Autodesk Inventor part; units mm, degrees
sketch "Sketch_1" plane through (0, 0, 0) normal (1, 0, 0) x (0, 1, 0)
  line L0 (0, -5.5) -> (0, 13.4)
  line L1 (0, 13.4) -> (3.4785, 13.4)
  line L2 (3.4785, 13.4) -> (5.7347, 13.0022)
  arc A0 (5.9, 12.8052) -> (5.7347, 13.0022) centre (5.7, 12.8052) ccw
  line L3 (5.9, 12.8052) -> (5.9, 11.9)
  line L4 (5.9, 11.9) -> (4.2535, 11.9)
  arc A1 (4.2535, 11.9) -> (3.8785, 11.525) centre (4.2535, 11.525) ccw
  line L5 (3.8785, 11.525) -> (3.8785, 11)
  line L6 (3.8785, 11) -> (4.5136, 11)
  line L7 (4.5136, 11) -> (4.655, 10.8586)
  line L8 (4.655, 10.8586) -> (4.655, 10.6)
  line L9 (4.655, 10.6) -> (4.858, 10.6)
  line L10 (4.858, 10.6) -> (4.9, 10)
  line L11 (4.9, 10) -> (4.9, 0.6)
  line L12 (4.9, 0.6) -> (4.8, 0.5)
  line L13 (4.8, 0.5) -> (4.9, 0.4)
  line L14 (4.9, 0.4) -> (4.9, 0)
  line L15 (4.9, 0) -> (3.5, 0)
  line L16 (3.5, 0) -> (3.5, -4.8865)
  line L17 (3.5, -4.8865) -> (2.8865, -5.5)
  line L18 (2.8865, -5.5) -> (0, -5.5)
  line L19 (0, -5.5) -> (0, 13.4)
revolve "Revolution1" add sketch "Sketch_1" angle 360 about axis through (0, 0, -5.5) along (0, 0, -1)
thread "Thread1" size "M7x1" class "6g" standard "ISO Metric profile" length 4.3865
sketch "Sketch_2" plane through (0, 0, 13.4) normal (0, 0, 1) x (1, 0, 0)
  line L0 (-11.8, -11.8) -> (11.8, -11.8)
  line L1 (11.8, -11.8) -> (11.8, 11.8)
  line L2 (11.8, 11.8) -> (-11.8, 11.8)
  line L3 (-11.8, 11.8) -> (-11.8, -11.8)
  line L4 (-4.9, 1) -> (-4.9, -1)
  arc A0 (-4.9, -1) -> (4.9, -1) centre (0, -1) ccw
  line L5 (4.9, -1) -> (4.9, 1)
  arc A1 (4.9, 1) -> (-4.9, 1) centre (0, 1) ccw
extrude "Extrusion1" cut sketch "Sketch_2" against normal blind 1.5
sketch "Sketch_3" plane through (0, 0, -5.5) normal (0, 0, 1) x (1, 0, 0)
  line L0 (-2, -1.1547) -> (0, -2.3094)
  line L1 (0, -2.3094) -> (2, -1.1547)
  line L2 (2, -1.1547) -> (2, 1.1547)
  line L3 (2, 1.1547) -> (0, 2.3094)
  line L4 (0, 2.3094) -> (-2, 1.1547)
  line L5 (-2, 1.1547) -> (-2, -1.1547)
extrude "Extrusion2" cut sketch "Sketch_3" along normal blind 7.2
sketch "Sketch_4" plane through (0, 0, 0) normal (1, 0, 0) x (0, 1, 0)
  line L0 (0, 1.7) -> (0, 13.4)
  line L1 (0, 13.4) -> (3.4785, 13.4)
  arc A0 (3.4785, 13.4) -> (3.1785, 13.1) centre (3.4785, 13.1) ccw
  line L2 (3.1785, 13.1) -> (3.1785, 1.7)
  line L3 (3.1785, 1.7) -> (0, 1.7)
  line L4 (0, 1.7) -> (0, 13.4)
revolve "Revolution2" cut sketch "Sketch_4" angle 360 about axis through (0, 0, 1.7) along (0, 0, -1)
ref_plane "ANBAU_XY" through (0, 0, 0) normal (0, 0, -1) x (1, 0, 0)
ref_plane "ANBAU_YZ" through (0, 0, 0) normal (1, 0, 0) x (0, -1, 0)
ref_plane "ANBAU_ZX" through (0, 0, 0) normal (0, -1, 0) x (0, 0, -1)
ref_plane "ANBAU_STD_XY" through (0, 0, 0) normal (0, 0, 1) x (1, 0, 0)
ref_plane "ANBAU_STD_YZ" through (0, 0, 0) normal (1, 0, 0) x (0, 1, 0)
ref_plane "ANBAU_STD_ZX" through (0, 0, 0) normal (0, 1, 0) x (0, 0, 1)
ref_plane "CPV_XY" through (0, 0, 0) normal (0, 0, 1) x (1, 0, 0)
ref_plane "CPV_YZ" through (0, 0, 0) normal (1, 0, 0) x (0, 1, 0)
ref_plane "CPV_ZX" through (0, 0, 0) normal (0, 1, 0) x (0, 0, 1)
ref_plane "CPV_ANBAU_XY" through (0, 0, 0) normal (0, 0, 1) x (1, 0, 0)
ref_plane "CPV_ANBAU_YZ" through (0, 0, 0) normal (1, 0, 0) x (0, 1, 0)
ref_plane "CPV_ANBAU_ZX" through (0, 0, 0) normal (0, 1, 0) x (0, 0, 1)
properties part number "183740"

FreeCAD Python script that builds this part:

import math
import FreeCAD as App
import Part
import Sketcher
Q = App.Units.Quantity


def add_polygon(sketch, points):
    """Adds a closed chain of lines whose ends are joined by coincident constraints."""
    first, n = sketch.GeometryCount, len(points)
    for a, b in zip(points, points[1:] + points[:1]):
        sketch.addGeometry(Part.LineSegment(App.Vector(*a, 0), App.Vector(*b, 0)), False)
    for i in range(n):
        sketch.addConstraint(Sketcher.Constraint("Coincident", first + i, 2, first + (i + 1) % n, 1))

doc = App.newDocument("Part")
body = doc.addObject("PartDesign::Body", "Body")

# Sketch on YZ plane
sketch1 = body.newObject("Sketcher::SketchObject", "Sketch")
sketch1.AttachmentSupport = (doc.getObject("YZ_Plane"), [""])
sketch1.MapMode = "FlatFace"
sketch1.addGeometry(Part.LineSegment(App.Vector(0, 13.4, 0), App.Vector(0, -5.5, 0)), False)
sketch1.addGeometry(Part.LineSegment(App.Vector(0, -5.5, 0), App.Vector(2.89, -5.5, 0)), False)
sketch1.addGeometry(Part.LineSegment(App.Vector(2.89, -5.5, 0), App.Vector(3.5, -4.89, 0)), False)
sketch1.addGeometry(Part.LineSegment(App.Vector(3.5, -4.89, 0), App.Vector(3.5, 0, 0)), False)
sketch1.addGeometry(Part.LineSegment(App.Vector(3.5, 0, 0), App.Vector(4.9, 0, 0)), False)
sketch1.addGeometry(Part.LineSegment(App.Vector(4.9, 0, 0), App.Vector(4.9, 0.4, 0)), False)
sketch1.addGeometry(Part.LineSegment(App.Vector(4.9, 0.4, 0), App.Vector(4.8, 0.5, 0)), False)
sketch1.addGeometry(Part.LineSegment(App.Vector(4.8, 0.5, 0), App.Vector(4.9, 0.6, 0)), False)
sketch1.addGeometry(Part.LineSegment(App.Vector(4.9, 0.6, 0), App.Vector(4.9, 10, 0)), False)
sketch1.addGeometry(Part.LineSegment(App.Vector(4.9, 10, 0), App.Vector(4.86, 10.6, 0)), False)
sketch1.addGeometry(Part.LineSegment(App.Vector(4.86, 10.6, 0), App.Vector(4.66, 10.6, 0)), False)
sketch1.addGeometry(Part.LineSegment(App.Vector(4.66, 10.6, 0), App.Vector(4.66, 10.86, 0)), False)
sketch1.addGeometry(Part.LineSegment(App.Vector(4.66, 10.86, 0), App.Vector(4.51, 11, 0)), False)
sketch1.addGeometry(Part.LineSegment(App.Vector(4.51, 11, 0), App.Vector(3.88, 11, 0)), False)
sketch1.addGeometry(Part.LineSegment(App.Vector(3.88, 11, 0), App.Vector(3.88, 11.53, 0)), False)
sketch1.addGeometry(Part.ArcOfCircle(Part.Circle(App.Vector(4.25, 11.53, 0), App.Vector(0, 0, 1), 0.38), math.radians(90), math.radians(180)), False)
sketch1.addGeometry(Part.LineSegment(App.Vector(4.25, 11.9, 0), App.Vector(5.9, 11.9, 0)), False)
sketch1.addGeometry(Part.LineSegment(App.Vector(5.9, 11.9, 0), App.Vector(5.9, 12.81, 0)), False)
sketch1.addGeometry(Part.ArcOfCircle(Part.Circle(App.Vector(5.7, 12.81, 0), App.Vector(0, 0, 1), 0.2), math.radians(0), math.radians(80)), False)
sketch1.addGeometry(Part.LineSegment(App.Vector(5.73, 13, 0), App.Vector(3.48, 13.4, 0)), False)
sketch1.addGeometry(Part.LineSegment(App.Vector(3.48, 13.4, 0), App.Vector(0, 13.4, 0)), False)
sketch1.addConstraint(Sketcher.Constraint("Coincident", 0, 2, 1, 1))
sketch1.addConstraint(Sketcher.Constraint("Coincident", 1, 2, 2, 1))
sketch1.addConstraint(Sketcher.Constraint("Coincident", 2, 2, 3, 1))
sketch1.addConstraint(Sketcher.Constraint("Coincident", 3, 2, 4, 1))
sketch1.addConstraint(Sketcher.Constraint("Coincident", 4, 2, 5, 1))
sketch1.addConstraint(Sketcher.Constraint("Coincident", 5, 2, 6, 1))
sketch1.addConstraint(Sketcher.Constraint("Coincident", 6, 2, 7, 1))
sketch1.addConstraint(Sketcher.Constraint("Coincident", 7, 2, 8, 1))
sketch1.addConstraint(Sketcher.Constraint("Coincident", 8, 2, 9, 1))
sketch1.addConstraint(Sketcher.Constraint("Coincident", 9, 2, 10, 1))
sketch1.addConstraint(Sketcher.Constraint("Coincident", 10, 2, 11, 1))
sketch1.addConstraint(Sketcher.Constraint("Coincident", 11, 2, 12, 1))
sketch1.addConstraint(Sketcher.Constraint("Coincident", 12, 2, 13, 1))
sketch1.addConstraint(Sketcher.Constraint("Coincident", 13, 2, 14, 1))
sketch1.addConstraint(Sketcher.Constraint("Tangent", 14, 2, 15, 2))
sketch1.addConstraint(Sketcher.Constraint("Tangent", 15, 1, 16, 1))
sketch1.addConstraint(Sketcher.Constraint("Coincident", 16, 2, 17, 1))
sketch1.addConstraint(Sketcher.Constraint("Tangent", 17, 2, 18, 1))
sketch1.addConstraint(Sketcher.Constraint("Tangent", 18, 2, 19, 1))
sketch1.addConstraint(Sketcher.Constraint("Coincident", 19, 2, 20, 1))
sketch1.addConstraint(Sketcher.Constraint("Coincident", 20, 2, 0, 1))
sketch1.addConstraint(Sketcher.Constraint("Vertical", 0))
sketch1.addConstraint(Sketcher.Constraint("Horizontal", 1))
sketch1.addConstraint(Sketcher.Constraint("Vertical", 3))
sketch1.addConstraint(Sketcher.Constraint("Horizontal", 4))
sketch1.addConstraint(Sketcher.Constraint("Vertical", 5))
sketch1.addConstraint(Sketcher.Constraint("Vertical", 8))
sketch1.addConstraint(Sketcher.Constraint("Horizontal", 10))
sketch1.addConstraint(Sketcher.Constraint("Vertical", 11))
sketch1.addConstraint(Sketcher.Constraint("Horizontal", 13))
sketch1.addConstraint(Sketcher.Constraint("Vertical", 14))
sketch1.addConstraint(Sketcher.Constraint("Horizontal", 16))
sketch1.addConstraint(Sketcher.Constraint("Vertical", 17))
sketch1.addConstraint(Sketcher.Constraint("Horizontal", 20))
sketch1.addConstraint(Sketcher.Constraint("PointOnObject", 0, 2, -2))
sketch1.addConstraint(Sketcher.Constraint("PointOnObject", 3, 2, -1))
sketch1.addConstraint(Sketcher.Constraint("Perpendicular", 2, 6))
sketch1.addConstraint(Sketcher.Constraint("Perpendicular", 6, 7))
sketch1.addConstraint(Sketcher.Constraint("Perpendicular", 7, 12))
sketch1.addConstraint(Sketcher.Constraint("Vertical", 5, 2, 7, 2))
sketch1.addConstraint(Sketcher.Constraint("Equal", 6, 7))
sketch1.addConstraint(Sketcher.Constraint("Radius", 18, 0.2))
sketch1.addConstraint(Sketcher.Constraint("Angle", 19, Q("170.0007 deg")))
sketch1.addConstraint(Sketcher.Constraint("DistanceX", 4, 1, 4, 2, 1.4))
sketch1.addConstraint(Sketcher.Constraint("DistanceY", 0, 2, 0, 1, 18.9))
sketch1.addConstraint(Sketcher.Constraint("DistanceY", 5, 1, 5, 2, 0.4))
sketch1.addConstraint(Sketcher.Constraint("DistanceY", 8, 1, 8, 2, 9.4))
sketch1.addConstraint(Sketcher.Constraint("DistanceY", -1, 1, 8, 2, 10.0))
sketch1.addConstraint(Sketcher.Constraint("DistanceY", -1, 1, 12, 2, 11.0))
sketch1.addConstraint(Sketcher.Constraint("Radius", 15, 0.375))
sketch1.addConstraint(Sketcher.Constraint("DistanceY", 1, 2, 6, 2, 6.0))
sketch1.addConstraint(Sketcher.Constraint("DistanceY", 7, 2, 9, 2, 10.0))
sketch1.addConstraint(Sketcher.Constraint("Distance", 12, 0.2))
sketch1.addConstraint(Sketcher.Constraint("DistanceX", -1, 1, 18, 3, 5.7))
sketch1.addConstraint(Sketcher.Constraint("DistanceX", -1, 1, 2, 2, 3.5))
sketch1.addConstraint(Sketcher.Constraint("DistanceY", -1, 1, 15, 1, 11.9))
sketch1.addConstraint(Sketcher.Constraint("DistanceX", 19, 2, 14, 2, 0.4))
sketch1.addConstraint(Sketcher.Constraint("DistanceX", 10, 2, 10, 1, 0.203))
sketch1.addConstraint(Sketcher.Constraint("DistanceX", 13, 2, 13, 1, 0.635))
sketch1.addConstraint(Sketcher.Constraint("Distance", 19, 2.291))
sketch1.addConstraint(Sketcher.Constraint("DistanceX", 1, 1, 1, 2, 2.8865))
revolution = body.newObject("PartDesign::Revolution", "Revolution")
revolution.Profile = sketch1
revolution.ReferenceAxis = (sketch1, ["V_Axis"])
revolution.Angle = 360

# Sketch on XY plane
sketch2 = body.newObject("Sketcher::SketchObject", "Sketch001")
sketch2.AttachmentSupport = (doc.getObject("XY_Plane"), [""])
sketch2.MapMode = "FlatFace"
sketch2.AttachmentOffset = App.Placement(App.Vector(0, 0, 13.4), App.Rotation())
add_polygon(sketch2, [(-11.8, 11.8), (-11.8, -11.8), (11.8, -11.8), (11.8, 11.8)])  # lines 0-3
sketch2.addGeometry(Part.LineSegment(App.Vector(-4.9, -1, 0), App.Vector(-4.9, 1, 0)), False)  # 4
sketch2.addGeometry(Part.ArcOfCircle(Part.Circle(App.Vector(0, 1, 0), App.Vector(0, 0, 1), 4.9), math.radians(0), math.radians(180)), False)  # 5
sketch2.addGeometry(Part.LineSegment(App.Vector(4.9, 1, 0), App.Vector(4.9, -1, 0)), False)  # 6
sketch2.addGeometry(Part.ArcOfCircle(Part.Circle(App.Vector(0, -1, 0), App.Vector(0, 0, 1), 4.9), math.radians(180), math.radians(360)), False)  # 7
sketch2.addConstraint(Sketcher.Constraint("Tangent", 4, 2, 5, 2))
sketch2.addConstraint(Sketcher.Constraint("Tangent", 5, 1, 6, 1))
sketch2.addConstraint(Sketcher.Constraint("Tangent", 6, 2, 7, 2))
sketch2.addConstraint(Sketcher.Constraint("Tangent", 7, 1, 4, 1))
sketch2.addConstraint(Sketcher.Constraint("Vertical", 0))
sketch2.addConstraint(Sketcher.Constraint("Horizontal", 1))
sketch2.addConstraint(Sketcher.Constraint("Vertical", 2))
sketch2.addConstraint(Sketcher.Constraint("Horizontal", 3))
sketch2.addConstraint(Sketcher.Constraint("Vertical", 4))
sketch2.addConstraint(Sketcher.Constraint("Vertical", 6))
sketch2.addConstraint(Sketcher.Constraint("Symmetric", 5, 3, 7, 3, -1, 1))
sketch2.addConstraint(Sketcher.Constraint("Symmetric", 0, 2, 2, 2, -1, 1))
sketch2.addConstraint(Sketcher.Constraint("Equal", 3, 0))
sketch2.addConstraint(Sketcher.Constraint("Radius", 5, 4.9))
sketch2.addConstraint(Sketcher.Constraint("DistanceY", 4, 1, 4, 2, 2.0))
sketch2.addConstraint(Sketcher.Constraint("DistanceX", 1, 1, 1, 2, 23.6))
pocket1 = body.newObject("PartDesign::Pocket", "Pocket")
pocket1.Profile = sketch2
pocket1.Length = 1.5

# Sketch on XY plane
sketch3 = body.newObject("Sketcher::SketchObject", "Sketch002")
sketch3.AttachmentSupport = (doc.getObject("XY_Plane"), [""])
sketch3.MapMode = "FlatFace"
sketch3.AttachmentOffset = App.Placement(App.Vector(0, 0, -5.5), App.Rotation())
add_polygon(sketch3, [(-2, 1.2), (-2, -1.2), (0, -2.3), (2, -1.2), (2, 1.2), (0, 2.3)])  # lines 0-5
sketch3.addConstraint(Sketcher.Constraint("Vertical", 0))
sketch3.addConstraint(Sketcher.Constraint("Vertical", 3))
sketch3.addConstraint(Sketcher.Constraint("Symmetric", 0, 2, 3, 2, -1, 1))
sketch3.addConstraint(Sketcher.Constraint("Symmetric", 1, 2, 4, 2, -1, 1))
sketch3.addConstraint(Sketcher.Constraint("PointOnObject", 1, 2, -2))
sketch3.addConstraint(Sketcher.Constraint("Parallel", 2, 5))
sketch3.addConstraint(Sketcher.Constraint("Horizontal", 0, 2, 2, 2))
sketch3.addConstraint(Sketcher.Constraint("Angle", 1, Q("-30 deg")))
sketch3.addConstraint(Sketcher.Constraint("DistanceX", 0, 2, -1, 1, 2.0))
sketch3.addConstraint(Sketcher.Constraint("DistanceY", 0, 2, 0, 1, 2.3094))
pocket2 = body.newObject("PartDesign::Pocket", "Pocket001")
pocket2.Profile = sketch3
pocket2.Length = 7.2
pocket2.Reversed = True

# Sketch on YZ plane
sketch4 = body.newObject("Sketcher::SketchObject", "Sketch003")
sketch4.AttachmentSupport = (doc.getObject("YZ_Plane"), [""])
sketch4.MapMode = "FlatFace"
sketch4.addGeometry(Part.LineSegment(App.Vector(0, 13.4, 0), App.Vector(0, 1.7, 0)), False)
sketch4.addGeometry(Part.LineSegment(App.Vector(0, 1.7, 0), App.Vector(3.18, 1.7, 0)), False)
sketch4.addGeometry(Part.LineSegment(App.Vector(3.18, 1.7, 0), App.Vector(3.18, 13.1, 0)), False)
sketch4.addGeometry(Part.ArcOfCircle(Part.Circle(App.Vector(3.48, 13.1, 0), App.Vector(0, 0, 1), 0.3), math.radians(90), math.radians(180)), False)
sketch4.addGeometry(Part.LineSegment(App.Vector(3.48, 13.4, 0), App.Vector(0, 13.4, 0)), False)
sketch4.addConstraint(Sketcher.Constraint("Coincident", 0, 2, 1, 1))
sketch4.addConstraint(Sketcher.Constraint("Coincident", 1, 2, 2, 1))
sketch4.addConstraint(Sketcher.Constraint("Tangent", 2, 2, 3, 2))
sketch4.addConstraint(Sketcher.Constraint("Tangent", 3, 1, 4, 1))
sketch4.addConstraint(Sketcher.Constraint("Coincident", 4, 2, 0, 1))
sketch4.addConstraint(Sketcher.Constraint("Vertical", 0))
sketch4.addConstraint(Sketcher.Constraint("Horizontal", 1))
sketch4.addConstraint(Sketcher.Constraint("Vertical", 2))
sketch4.addConstraint(Sketcher.Constraint("Horizontal", 4))
sketch4.addConstraint(Sketcher.Constraint("PointOnObject", 0, 2, -2))
sketch4.addConstraint(Sketcher.Constraint("Radius", 3, 0.3))
sketch4.addConstraint(Sketcher.Constraint("DistanceY", 0, 2, 0, 1, 11.7))
sketch4.addConstraint(Sketcher.Constraint("DistanceY", -1, 1, 3, 3, 13.1))
sketch4.addConstraint(Sketcher.Constraint("DistanceX", 1, 1, 1, 2, 3.1785))
groove = body.newObject("PartDesign::Groove", "Groove")
groove.Profile = sketch4
groove.ReferenceAxis = (sketch4, ["V_Axis"])
groove.Angle = 360

doc.recompute()
